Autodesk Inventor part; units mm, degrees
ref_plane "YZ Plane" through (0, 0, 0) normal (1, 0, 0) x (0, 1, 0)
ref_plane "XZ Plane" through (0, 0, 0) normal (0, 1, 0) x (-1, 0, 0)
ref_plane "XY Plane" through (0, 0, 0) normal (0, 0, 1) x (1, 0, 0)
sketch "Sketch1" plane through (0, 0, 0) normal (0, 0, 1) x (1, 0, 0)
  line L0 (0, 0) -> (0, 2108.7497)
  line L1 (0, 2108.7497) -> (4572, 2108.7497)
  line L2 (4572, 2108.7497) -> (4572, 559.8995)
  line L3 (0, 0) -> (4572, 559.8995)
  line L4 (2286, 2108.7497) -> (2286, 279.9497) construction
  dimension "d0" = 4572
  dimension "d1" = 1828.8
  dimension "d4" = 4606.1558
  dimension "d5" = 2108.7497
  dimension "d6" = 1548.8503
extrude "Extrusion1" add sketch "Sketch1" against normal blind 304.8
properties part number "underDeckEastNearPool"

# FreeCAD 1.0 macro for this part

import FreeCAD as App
import Part
import Sketcher

V = App.Vector
Q = App.Units.Quantity

doc = App.newDocument("Part")
body = doc.addObject("PartDesign::Body", "Body")

# Sketch on XY plane
sketch1 = body.newObject("Sketcher::SketchObject", "Sketch")
sketch1.AttachmentSupport = (doc.getObject("XY_Plane"), [""])
sketch1.MapMode = "FlatFace"
sketch1.addGeometry([
    Part.LineSegment(V(0, 2108.7497, 0), V(0, 0, 0)),
    Part.LineSegment(V(0, 0, 0), V(4572, 559.8995, 0)),
    Part.LineSegment(V(4572, 559.8995, 0), V(4572, 2108.7497, 0)),
    Part.LineSegment(V(4572, 2108.7497, 0), V(0, 2108.7497, 0)),
], False)
sketch1.addConstraint([
    Sketcher.Constraint("Coincident", 0, 2, 1, 1),
    Sketcher.Constraint("Coincident", 1, 2, 2, 1),
    Sketcher.Constraint("Coincident", 2, 2, 3, 1),
    Sketcher.Constraint("Coincident", 3, 2, 0, 1),
    Sketcher.Constraint("Vertical", 0),
    Sketcher.Constraint("Vertical", 2),
    Sketcher.Constraint("Horizontal", 3),
    Sketcher.Constraint("Coincident", 0, 2, -1, 1),
    Sketcher.Constraint("DistanceX", 3, 2, 3, 1, Q("180 in")),
    Sketcher.Constraint("DistanceY", 0, 2, 0, 1, Q("2108.7497 mm")),
    Sketcher.Constraint("DistanceY", 2, 1, 2, 2, Q("1548.8502 mm")),
])
pad1 = body.newObject("PartDesign::Pad", "Pad")
pad1.Profile = sketch1
pad1.Length = Q("12 in")
pad1.Reversed = True

doc.recompute()
